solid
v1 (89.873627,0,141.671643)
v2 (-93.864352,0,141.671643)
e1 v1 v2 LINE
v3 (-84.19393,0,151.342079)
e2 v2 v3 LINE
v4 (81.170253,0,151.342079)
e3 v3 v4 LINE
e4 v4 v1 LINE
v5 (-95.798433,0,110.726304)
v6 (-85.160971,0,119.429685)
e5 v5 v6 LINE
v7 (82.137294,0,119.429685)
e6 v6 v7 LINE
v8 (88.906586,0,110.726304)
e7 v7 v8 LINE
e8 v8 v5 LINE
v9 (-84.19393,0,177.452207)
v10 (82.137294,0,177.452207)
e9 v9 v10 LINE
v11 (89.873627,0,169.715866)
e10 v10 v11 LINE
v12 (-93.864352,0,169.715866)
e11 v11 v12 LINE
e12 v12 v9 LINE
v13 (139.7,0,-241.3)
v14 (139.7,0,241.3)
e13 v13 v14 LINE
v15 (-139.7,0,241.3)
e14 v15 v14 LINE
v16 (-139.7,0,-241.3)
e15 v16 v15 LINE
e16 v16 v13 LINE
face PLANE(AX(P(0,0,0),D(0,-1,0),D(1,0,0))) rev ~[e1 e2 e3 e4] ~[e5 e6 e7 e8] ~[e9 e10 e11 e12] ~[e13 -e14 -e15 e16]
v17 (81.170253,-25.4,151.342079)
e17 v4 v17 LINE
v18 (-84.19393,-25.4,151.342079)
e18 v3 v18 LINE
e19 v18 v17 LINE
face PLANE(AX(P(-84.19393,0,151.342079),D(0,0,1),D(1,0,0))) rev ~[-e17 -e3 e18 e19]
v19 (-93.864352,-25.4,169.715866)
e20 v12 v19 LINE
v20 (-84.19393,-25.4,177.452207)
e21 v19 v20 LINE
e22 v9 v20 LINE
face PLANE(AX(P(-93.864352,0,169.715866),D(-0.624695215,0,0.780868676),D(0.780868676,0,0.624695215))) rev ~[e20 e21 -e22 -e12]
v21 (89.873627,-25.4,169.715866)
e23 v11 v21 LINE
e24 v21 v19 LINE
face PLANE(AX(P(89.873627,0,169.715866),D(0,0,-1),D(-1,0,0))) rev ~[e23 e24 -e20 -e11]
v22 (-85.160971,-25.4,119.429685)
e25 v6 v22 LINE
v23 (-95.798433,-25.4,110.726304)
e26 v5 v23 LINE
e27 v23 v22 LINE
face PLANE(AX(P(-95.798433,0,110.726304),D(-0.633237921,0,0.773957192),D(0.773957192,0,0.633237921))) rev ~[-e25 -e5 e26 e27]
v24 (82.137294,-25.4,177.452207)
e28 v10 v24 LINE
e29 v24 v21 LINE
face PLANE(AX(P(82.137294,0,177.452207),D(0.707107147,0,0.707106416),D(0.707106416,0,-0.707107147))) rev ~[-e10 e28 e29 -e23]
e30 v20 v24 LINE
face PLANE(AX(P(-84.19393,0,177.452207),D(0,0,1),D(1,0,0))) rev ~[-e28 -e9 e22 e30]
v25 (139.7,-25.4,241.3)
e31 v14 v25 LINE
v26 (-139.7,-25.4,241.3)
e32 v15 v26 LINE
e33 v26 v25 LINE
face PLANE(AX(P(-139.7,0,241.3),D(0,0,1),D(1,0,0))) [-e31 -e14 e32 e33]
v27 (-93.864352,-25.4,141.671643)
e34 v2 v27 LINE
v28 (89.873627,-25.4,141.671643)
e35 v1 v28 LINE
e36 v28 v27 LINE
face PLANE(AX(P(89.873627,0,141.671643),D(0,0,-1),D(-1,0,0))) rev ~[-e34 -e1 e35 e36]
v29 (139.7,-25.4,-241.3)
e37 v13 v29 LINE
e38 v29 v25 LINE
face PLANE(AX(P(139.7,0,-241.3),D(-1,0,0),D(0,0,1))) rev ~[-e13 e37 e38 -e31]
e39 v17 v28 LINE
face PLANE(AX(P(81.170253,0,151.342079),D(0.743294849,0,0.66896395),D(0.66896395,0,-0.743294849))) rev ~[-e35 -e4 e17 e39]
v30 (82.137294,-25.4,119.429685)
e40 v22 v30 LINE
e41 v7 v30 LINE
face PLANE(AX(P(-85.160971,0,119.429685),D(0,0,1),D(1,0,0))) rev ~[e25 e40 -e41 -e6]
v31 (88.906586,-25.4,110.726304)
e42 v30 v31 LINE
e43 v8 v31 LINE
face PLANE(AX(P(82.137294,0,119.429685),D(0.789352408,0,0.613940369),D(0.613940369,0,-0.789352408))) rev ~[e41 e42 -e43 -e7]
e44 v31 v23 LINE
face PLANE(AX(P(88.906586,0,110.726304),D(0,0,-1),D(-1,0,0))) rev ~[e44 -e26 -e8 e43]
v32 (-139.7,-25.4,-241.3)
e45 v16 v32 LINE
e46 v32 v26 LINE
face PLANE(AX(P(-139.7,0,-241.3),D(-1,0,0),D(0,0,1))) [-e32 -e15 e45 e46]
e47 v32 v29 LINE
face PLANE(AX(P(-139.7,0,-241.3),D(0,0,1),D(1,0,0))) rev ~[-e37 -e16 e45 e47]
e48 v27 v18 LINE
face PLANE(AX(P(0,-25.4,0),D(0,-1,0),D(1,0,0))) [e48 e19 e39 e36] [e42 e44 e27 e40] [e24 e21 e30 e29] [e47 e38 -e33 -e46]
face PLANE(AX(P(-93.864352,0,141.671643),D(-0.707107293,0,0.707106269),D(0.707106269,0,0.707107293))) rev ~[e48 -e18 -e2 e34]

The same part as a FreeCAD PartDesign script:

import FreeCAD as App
import Part
import Sketcher
from FreeCAD import Vector
Q = App.Units.Quantity

doc = App.newDocument("Part")
body = doc.addObject("PartDesign::Body", "Body")

# Sketch on XZ plane
sketch1 = body.newObject("Sketcher::SketchObject", "Sketch")
sketch1.AttachmentSupport = (doc.getObject("XZ_Plane"), [""])
sketch1.MapMode = "FlatFace"
sketch1.addGeometry(Part.LineSegment(Vector(-140, 241, 0), Vector(-140, -241, 0)), False)
sketch1.addGeometry(Part.LineSegment(Vector(-140, -241, 0), Vector(140, -241, 0)), False)
sketch1.addGeometry(Part.LineSegment(Vector(140, -241, 0), Vector(140, 241, 0)), False)
sketch1.addGeometry(Part.LineSegment(Vector(140, 241, 0), Vector(-140, 241, 0)), False)
sketch1.addGeometry(Part.LineSegment(Vector(89, 111, 0), Vector(-96, 111, 0)), False)
sketch1.addGeometry(Part.LineSegment(Vector(-96, 111, 0), Vector(-85, 119, 0)), False)
sketch1.addGeometry(Part.LineSegment(Vector(-85, 119, 0), Vector(82, 119, 0)), False)
sketch1.addGeometry(Part.LineSegment(Vector(82, 119, 0), Vector(89, 111, 0)), False)
sketch1.addGeometry(Part.LineSegment(Vector(90, 142, 0), Vector(-94, 142, 0)), False)
sketch1.addGeometry(Part.LineSegment(Vector(-94, 142, 0), Vector(-84, 151, 0)), False)
sketch1.addGeometry(Part.LineSegment(Vector(-84, 151, 0), Vector(81, 151, 0)), False)
sketch1.addGeometry(Part.LineSegment(Vector(81, 151, 0), Vector(90, 142, 0)), False)
sketch1.addGeometry(Part.LineSegment(Vector(90, 170, 0), Vector(-94, 170, 0)), False)
sketch1.addGeometry(Part.LineSegment(Vector(-94, 170, 0), Vector(-84, 177, 0)), False)
sketch1.addGeometry(Part.LineSegment(Vector(-84, 177, 0), Vector(82, 177, 0)), False)
sketch1.addGeometry(Part.LineSegment(Vector(82, 177, 0), Vector(90, 170, 0)), False)
sketch1.addConstraint(Sketcher.Constraint("Coincident", 0, 2, 1, 1))
sketch1.addConstraint(Sketcher.Constraint("Coincident", 1, 2, 2, 1))
sketch1.addConstraint(Sketcher.Constraint("Coincident", 2, 2, 3, 1))
sketch1.addConstraint(Sketcher.Constraint("Coincident", 3, 2, 0, 1))
sketch1.addConstraint(Sketcher.Constraint("Coincident", 4, 2, 5, 1))
sketch1.addConstraint(Sketcher.Constraint("Coincident", 5, 2, 6, 1))
sketch1.addConstraint(Sketcher.Constraint("Coincident", 6, 2, 7, 1))
sketch1.addConstraint(Sketcher.Constraint("Coincident", 7, 2, 4, 1))
sketch1.addConstraint(Sketcher.Constraint("Coincident", 8, 2, 9, 1))
sketch1.addConstraint(Sketcher.Constraint("Coincident", 9, 2, 10, 1))
sketch1.addConstraint(Sketcher.Constraint("Coincident", 10, 2, 11, 1))
sketch1.addConstraint(Sketcher.Constraint("Coincident", 11, 2, 8, 1))
sketch1.addConstraint(Sketcher.Constraint("Coincident", 12, 2, 13, 1))
sketch1.addConstraint(Sketcher.Constraint("Coincident", 13, 2, 14, 1))
sketch1.addConstraint(Sketcher.Constraint("Coincident", 14, 2, 15, 1))
sketch1.addConstraint(Sketcher.Constraint("Coincident", 15, 2, 12, 1))
sketch1.addConstraint(Sketcher.Constraint("Vertical", 0))
sketch1.addConstraint(Sketcher.Constraint("Horizontal", 1))
sketch1.addConstraint(Sketcher.Constraint("Vertical", 2))
sketch1.addConstraint(Sketcher.Constraint("Horizontal", 3))
sketch1.addConstraint(Sketcher.Constraint("Horizontal", 4))
sketch1.addConstraint(Sketcher.Constraint("Horizontal", 6))
sketch1.addConstraint(Sketcher.Constraint("Horizontal", 8))
sketch1.addConstraint(Sketcher.Constraint("Horizontal", 10))
sketch1.addConstraint(Sketcher.Constraint("Horizontal", 12))
sketch1.addConstraint(Sketcher.Constraint("Horizontal", 14))
sketch1.addConstraint(Sketcher.Constraint("Symmetric", 0, 2, 2, 2, -1, 1))
sketch1.addConstraint(Sketcher.Constraint("Perpendicular", 9, 15))
sketch1.addConstraint(Sketcher.Constraint("Vertical", 8, 2, 12, 2))
sketch1.addConstraint(Sketcher.Constraint("Vertical", 9, 2, 13, 2))
sketch1.addConstraint(Sketcher.Constraint("Vertical", 6, 2, 14, 2))
sketch1.addConstraint(Sketcher.Constraint("Vertical", 11, 2, 15, 2))
sketch1.addConstraint(Sketcher.Constraint("DistanceX", 1, 1, 1, 2, Q("11 in")))
sketch1.addConstraint(Sketcher.Constraint("DistanceY", 0, 2, 0, 1, Q("19 in")))
sketch1.addConstraint(Sketcher.Constraint("DistanceX", 4, 2, 4, 1, 184.705019))
sketch1.addConstraint(Sketcher.Constraint("DistanceX", 8, 2, 8, 1, 183.737979))
sketch1.addConstraint(Sketcher.Constraint("Distance", 5, 13.744251))
sketch1.addConstraint(Sketcher.Constraint("Distance", 9, 13.676052))
sketch1.addConstraint(Sketcher.Constraint("Distance", 11, 13.010229))
sketch1.addConstraint(Sketcher.Constraint("DistanceX", 6, 1, 6, 2, 167.298265))
sketch1.addConstraint(Sketcher.Constraint("DistanceX", 10, 1, 10, 2, 165.364183))
sketch1.addConstraint(Sketcher.Constraint("DistanceX", 14, 1, 14, 2, 166.331224))
sketch1.addConstraint(Sketcher.Constraint("DistanceX", 5, 2, -1, 1, 85.160971))
sketch1.addConstraint(Sketcher.Constraint("DistanceY", -1, 1, 9, 2, 151.342079))
sketch1.addConstraint(Sketcher.Constraint("DistanceX", 4, 2, 5, 2, 10.637462))
sketch1.addConstraint(Sketcher.Constraint("DistanceY", 4, 2, 8, 2, 30.945339))
sketch1.addConstraint(Sketcher.Constraint("DistanceY", 5, 2, 12, 2, 50.286181))
pad1 = body.newObject("PartDesign::Pad", "Pad")
pad1.Profile = sketch1
pad1.Length = Q("1 in")

doc.recompute()
